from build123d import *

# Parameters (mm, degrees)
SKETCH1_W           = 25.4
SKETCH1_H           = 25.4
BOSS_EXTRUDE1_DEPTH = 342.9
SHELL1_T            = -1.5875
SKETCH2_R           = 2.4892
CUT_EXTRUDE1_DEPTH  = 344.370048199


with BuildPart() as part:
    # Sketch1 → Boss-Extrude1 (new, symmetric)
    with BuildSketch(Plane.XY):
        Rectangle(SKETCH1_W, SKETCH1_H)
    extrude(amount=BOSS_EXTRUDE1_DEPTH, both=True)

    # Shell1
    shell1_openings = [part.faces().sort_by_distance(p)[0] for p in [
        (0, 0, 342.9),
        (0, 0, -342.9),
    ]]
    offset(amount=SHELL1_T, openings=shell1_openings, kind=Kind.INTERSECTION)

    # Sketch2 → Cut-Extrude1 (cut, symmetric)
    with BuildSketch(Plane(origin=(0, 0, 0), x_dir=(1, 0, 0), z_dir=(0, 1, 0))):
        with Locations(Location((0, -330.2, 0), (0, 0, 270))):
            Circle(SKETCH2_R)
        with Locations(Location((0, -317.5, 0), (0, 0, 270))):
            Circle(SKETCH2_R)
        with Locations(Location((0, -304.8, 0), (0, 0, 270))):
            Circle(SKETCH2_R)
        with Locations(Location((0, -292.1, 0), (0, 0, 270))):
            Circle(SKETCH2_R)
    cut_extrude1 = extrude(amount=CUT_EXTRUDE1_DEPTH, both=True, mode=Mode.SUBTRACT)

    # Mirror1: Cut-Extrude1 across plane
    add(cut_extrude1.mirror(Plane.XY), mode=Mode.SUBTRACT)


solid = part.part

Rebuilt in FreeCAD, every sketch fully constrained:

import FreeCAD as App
import Part
import Sketcher
from FreeCAD import Vector
Q = App.Units.Quantity


def faces_at(feature, points):
    """Names of the faces that lie closest to the given points."""
    faces = feature.Shape.Faces
    near = lambda p: min(range(len(faces)), key=lambda i: faces[i].distToShape(Part.Vertex(*p))[0])
    return sorted({f"Face{near(p) + 1}" for p in points})

doc = App.newDocument("Part")
body = doc.addObject("PartDesign::Body", "Body")

# Sketch on XY plane
sketch1 = body.newObject("Sketcher::SketchObject", "Sketch")
sketch1.AttachmentSupport = (doc.getObject("XY_Plane"), [""])
sketch1.MapMode = "FlatFace"
sketch1.addGeometry([
    Part.LineSegment(Vector(-13, 13, 0), Vector(-13, -13, 0)),
    Part.LineSegment(Vector(-13, -13, 0), Vector(13, -13, 0)),
    Part.LineSegment(Vector(13, -13, 0), Vector(13, 13, 0)),
    Part.LineSegment(Vector(13, 13, 0), Vector(-13, 13, 0)),
], False)
sketch1.addConstraint([
    Sketcher.Constraint("Coincident", 0, 2, 1, 1),
    Sketcher.Constraint("Coincident", 1, 2, 2, 1),
    Sketcher.Constraint("Coincident", 2, 2, 3, 1),
    Sketcher.Constraint("Coincident", 3, 2, 0, 1),
    Sketcher.Constraint("Vertical", 0),
    Sketcher.Constraint("Horizontal", 1),
    Sketcher.Constraint("Vertical", 2),
    Sketcher.Constraint("Horizontal", 3),
    Sketcher.Constraint("Symmetric", 0, 2, 2, 2, -1, 1),
    Sketcher.Constraint("Equal", 3, 0),
    Sketcher.Constraint("DistanceX", 1, 1, 1, 2, Q("1 in")),
])
pad1 = body.newObject("PartDesign::Pad", "Pad")
pad1.Profile = sketch1
pad1.Length = Q("27 in")
pad1.Midplane = True
doc.recompute()

thickness = body.newObject("PartDesign::Thickness", "Thickness")
thickness.Base = (pad1, faces_at(pad1, [(0, 0, 342.9), (0, 0, -342.9)]))
thickness.Value = Q("0.0625 in")
thickness.Reversed = True
thickness.Join = "Intersection"

# Sketch on XZ plane
sketch2 = body.newObject("Sketcher::SketchObject", "Sketch001")
sketch2.AttachmentSupport = (doc.getObject("XZ_Plane"), [""])
sketch2.MapMode = "FlatFace"
sketch2.addGeometry([
    Part.Circle(Vector(0, 330.2, 0), Vector(0, 0, 1), 2.5),
    Part.Circle(Vector(0, 317.5, 0), Vector(0, 0, 1), 2.5),
    Part.Circle(Vector(0, 304.8, 0), Vector(0, 0, 1), 2.5),
    Part.Circle(Vector(0, 292.1, 0), Vector(0, 0, 1), 2.5),
], False)
sketch2.addConstraint([
    Sketcher.Constraint("Equal", 0, 1),
    Sketcher.Constraint("Equal", 1, 2),
    Sketcher.Constraint("Equal", 2, 3),
    Sketcher.Constraint("PointOnObject", 0, 3, -2),
    Sketcher.Constraint("PointOnObject", 1, 3, -2),
    Sketcher.Constraint("PointOnObject", 2, 3, -2),
    Sketcher.Constraint("PointOnObject", 3, 3, -2),
    Sketcher.Constraint("Diameter", 0, Q("0.196 in")),
    Sketcher.Constraint("DistanceY", -1, 1, 0, 3, Q("13 in")),
    Sketcher.Constraint("DistanceY", -1, 1, 2, 3, Q("12 in")),
    Sketcher.Constraint("DistanceY", 3, 3, 1, 3, Q("1 in")),
    Sketcher.Constraint("DistanceY", -1, 1, 1, 3, Q("12.5 in")),
])
pocket1 = body.newObject("PartDesign::Pocket", "Pocket")
pocket1.Profile = sketch2
pocket1.Length = 688.740096
pocket1.Midplane = True
doc.recompute()

mirrored = body.newObject("PartDesign::Mirrored", "Mirrored")
mirrored.Originals = [pocket1]
mirrored.MirrorPlane = (doc.getObject("XY_Plane"), [""])
body.Tip = mirrored

doc.recompute()
